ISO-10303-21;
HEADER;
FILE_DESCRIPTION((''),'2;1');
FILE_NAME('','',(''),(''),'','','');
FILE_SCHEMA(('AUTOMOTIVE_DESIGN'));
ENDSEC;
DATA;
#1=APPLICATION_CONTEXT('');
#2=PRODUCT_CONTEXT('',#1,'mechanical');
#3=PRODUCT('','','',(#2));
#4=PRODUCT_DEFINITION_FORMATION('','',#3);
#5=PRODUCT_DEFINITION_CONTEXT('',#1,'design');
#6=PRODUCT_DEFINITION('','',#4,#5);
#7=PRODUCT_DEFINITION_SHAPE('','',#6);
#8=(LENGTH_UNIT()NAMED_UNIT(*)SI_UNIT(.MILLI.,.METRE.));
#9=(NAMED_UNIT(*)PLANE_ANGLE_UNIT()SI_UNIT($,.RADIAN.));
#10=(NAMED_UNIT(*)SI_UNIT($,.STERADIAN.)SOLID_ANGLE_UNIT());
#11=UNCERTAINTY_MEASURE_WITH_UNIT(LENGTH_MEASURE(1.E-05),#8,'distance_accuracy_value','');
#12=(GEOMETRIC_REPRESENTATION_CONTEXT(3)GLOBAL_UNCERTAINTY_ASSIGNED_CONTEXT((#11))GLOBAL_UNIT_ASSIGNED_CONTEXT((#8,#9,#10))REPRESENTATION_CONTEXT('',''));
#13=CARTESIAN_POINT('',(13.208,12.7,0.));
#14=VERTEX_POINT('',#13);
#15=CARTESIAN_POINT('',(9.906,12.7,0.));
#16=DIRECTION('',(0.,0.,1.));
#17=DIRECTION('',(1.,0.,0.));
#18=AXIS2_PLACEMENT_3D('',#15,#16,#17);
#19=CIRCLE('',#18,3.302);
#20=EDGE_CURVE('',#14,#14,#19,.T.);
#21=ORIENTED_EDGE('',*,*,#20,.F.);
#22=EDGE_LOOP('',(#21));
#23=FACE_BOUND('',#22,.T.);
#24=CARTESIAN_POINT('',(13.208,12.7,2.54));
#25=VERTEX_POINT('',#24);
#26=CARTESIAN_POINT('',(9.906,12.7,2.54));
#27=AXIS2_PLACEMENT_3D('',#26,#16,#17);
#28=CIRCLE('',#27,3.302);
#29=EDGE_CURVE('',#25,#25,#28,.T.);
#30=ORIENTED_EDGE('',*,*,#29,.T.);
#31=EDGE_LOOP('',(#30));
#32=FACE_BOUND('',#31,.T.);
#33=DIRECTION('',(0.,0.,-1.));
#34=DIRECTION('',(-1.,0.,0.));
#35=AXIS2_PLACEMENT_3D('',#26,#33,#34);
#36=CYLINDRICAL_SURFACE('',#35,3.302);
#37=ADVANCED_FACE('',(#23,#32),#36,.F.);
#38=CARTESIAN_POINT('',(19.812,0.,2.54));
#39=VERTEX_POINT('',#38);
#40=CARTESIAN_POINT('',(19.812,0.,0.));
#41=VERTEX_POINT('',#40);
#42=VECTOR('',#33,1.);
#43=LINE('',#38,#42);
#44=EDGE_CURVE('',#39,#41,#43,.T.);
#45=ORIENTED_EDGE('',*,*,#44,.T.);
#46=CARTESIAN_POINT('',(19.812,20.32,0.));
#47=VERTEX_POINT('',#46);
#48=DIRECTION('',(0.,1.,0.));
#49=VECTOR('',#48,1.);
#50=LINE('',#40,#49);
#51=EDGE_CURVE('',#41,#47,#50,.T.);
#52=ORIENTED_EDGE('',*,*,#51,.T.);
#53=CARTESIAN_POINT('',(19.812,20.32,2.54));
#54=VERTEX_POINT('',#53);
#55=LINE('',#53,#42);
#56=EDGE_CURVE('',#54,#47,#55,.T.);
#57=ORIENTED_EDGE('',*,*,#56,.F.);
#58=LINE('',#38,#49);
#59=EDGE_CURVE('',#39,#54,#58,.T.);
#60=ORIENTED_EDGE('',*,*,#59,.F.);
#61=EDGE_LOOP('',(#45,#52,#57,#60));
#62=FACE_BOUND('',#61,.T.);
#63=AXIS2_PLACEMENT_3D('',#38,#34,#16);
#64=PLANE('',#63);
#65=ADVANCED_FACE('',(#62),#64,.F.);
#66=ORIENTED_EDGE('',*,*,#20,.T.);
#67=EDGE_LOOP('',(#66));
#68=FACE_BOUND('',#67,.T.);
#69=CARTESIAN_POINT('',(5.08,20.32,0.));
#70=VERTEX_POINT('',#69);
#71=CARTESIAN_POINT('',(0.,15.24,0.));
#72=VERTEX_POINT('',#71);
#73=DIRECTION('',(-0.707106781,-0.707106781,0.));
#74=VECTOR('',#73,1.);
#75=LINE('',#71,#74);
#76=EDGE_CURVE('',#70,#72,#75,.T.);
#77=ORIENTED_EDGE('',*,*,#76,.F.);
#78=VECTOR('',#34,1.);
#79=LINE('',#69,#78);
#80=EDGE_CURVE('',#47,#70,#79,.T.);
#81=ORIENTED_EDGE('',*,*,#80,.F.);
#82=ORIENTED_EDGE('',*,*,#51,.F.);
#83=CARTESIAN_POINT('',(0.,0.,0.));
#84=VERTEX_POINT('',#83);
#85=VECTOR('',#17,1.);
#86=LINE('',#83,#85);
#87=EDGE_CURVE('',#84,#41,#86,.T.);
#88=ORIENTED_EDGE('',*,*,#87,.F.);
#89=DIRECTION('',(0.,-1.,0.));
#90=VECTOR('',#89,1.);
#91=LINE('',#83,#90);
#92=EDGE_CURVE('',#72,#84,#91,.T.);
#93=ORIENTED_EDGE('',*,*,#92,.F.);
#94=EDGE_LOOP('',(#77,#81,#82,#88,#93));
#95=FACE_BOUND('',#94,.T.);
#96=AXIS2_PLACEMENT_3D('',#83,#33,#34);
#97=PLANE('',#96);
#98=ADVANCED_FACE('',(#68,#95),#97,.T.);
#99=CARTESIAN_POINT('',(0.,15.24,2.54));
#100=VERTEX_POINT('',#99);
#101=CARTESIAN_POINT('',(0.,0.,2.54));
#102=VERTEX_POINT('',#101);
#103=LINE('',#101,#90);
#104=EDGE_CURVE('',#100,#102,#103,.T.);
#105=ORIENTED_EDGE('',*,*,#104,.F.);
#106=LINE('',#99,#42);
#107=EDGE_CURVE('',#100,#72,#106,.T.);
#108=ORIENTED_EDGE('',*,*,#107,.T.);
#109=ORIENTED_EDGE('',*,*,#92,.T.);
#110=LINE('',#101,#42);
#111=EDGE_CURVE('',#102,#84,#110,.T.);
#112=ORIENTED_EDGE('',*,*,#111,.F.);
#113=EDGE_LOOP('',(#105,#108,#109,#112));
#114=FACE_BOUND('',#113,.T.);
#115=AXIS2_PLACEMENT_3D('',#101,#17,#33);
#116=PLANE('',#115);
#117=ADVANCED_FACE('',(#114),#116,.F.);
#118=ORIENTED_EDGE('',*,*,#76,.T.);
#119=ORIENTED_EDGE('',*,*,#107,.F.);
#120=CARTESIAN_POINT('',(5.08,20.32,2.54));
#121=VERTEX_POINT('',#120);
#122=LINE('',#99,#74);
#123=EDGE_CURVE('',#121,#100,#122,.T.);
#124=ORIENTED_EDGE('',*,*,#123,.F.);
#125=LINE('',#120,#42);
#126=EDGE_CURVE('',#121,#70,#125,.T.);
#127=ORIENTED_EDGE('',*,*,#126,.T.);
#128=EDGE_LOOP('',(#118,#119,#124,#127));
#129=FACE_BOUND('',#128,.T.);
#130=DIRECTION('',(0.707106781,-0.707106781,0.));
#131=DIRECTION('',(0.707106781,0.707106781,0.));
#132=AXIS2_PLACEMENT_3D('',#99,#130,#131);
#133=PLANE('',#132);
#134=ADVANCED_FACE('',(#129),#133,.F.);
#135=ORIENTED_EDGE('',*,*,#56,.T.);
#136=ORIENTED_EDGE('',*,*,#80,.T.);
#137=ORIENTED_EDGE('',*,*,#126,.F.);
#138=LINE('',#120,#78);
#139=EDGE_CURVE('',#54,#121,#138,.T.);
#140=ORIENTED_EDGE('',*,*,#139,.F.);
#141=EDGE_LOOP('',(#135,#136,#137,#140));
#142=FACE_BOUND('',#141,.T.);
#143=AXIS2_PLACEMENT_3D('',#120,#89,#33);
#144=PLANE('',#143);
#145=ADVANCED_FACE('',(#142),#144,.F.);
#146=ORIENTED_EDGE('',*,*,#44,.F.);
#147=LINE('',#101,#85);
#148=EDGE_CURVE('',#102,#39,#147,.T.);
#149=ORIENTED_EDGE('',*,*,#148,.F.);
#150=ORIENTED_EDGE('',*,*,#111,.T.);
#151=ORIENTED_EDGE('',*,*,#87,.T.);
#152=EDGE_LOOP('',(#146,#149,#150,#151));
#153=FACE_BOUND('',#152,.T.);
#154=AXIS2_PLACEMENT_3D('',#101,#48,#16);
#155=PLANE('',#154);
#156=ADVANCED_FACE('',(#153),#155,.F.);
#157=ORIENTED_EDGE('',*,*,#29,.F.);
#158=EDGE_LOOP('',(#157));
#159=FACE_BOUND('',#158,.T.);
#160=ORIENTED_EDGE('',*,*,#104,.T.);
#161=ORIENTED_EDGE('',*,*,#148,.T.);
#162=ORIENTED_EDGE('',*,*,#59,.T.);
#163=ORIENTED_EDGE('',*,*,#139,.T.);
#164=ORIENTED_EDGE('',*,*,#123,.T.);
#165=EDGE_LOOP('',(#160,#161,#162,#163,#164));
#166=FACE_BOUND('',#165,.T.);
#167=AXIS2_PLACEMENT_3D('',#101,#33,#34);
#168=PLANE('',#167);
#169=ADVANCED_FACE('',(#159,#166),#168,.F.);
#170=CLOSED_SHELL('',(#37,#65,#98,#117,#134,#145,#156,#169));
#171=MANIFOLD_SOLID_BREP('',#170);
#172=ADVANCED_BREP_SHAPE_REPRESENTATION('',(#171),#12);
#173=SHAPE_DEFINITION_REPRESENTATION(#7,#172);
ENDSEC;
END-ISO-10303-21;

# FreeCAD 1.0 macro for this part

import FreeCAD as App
import Part
import Sketcher

V = App.Vector
Q = App.Units.Quantity


def add_polygon(sketch, points):
    """Adds a closed chain of lines whose ends are joined by coincident constraints."""
    first, n = sketch.GeometryCount, len(points)
    for a, b in zip(points, points[1:] + points[:1]):
        sketch.addGeometry(Part.LineSegment(App.Vector(*a, 0), App.Vector(*b, 0)), False)
    for i in range(n):
        sketch.addConstraint(Sketcher.Constraint("Coincident", first + i, 2, first + (i + 1) % n, 1))

doc = App.newDocument("Part")
params = doc.addObject("Spreadsheet::Sheet", "Params")
for row, (alias, value) in enumerate([
    ("sketch1_diameter", "0.26 in"),
    ("sketch1_height", "0.6 in"),
    ("sketch1_height2", "0.8 in"),
    ("sketch1_width", "0.78 in"),
    ("pad1_length", "0.1 in"),
], start=1):
    params.set(f"A{row}", alias)
    params.set(f"B{row}", "=" + value)
    params.setAlias(f"B{row}", alias)

body = doc.addObject("PartDesign::Body", "Body")

# Sketch on XY plane
sketch1 = body.newObject("Sketcher::SketchObject", "Sketch")
sketch1.AttachmentSupport = (doc.getObject("XY_Plane"), [""])
sketch1.MapMode = "FlatFace"
add_polygon(sketch1, [(5.1, 20.3), (0, 15.2), (0, 0), (19.8, 0), (19.8, 20.3)])  # lines 0-4
sketch1.addGeometry(Part.Circle(V(9.9, 12.7, 0), V(0, 0, 1), 3.3), False)  # 5
sketch1.addConstraint([
    Sketcher.Constraint("Vertical", 1),
    Sketcher.Constraint("Horizontal", 2),
    Sketcher.Constraint("Vertical", 3),
    Sketcher.Constraint("Horizontal", 4),
    Sketcher.Constraint("Coincident", 1, 2, -1, 1),
    Sketcher.Constraint("Diameter", 5, Q("0.26 in")),
    Sketcher.Constraint("DistanceY", 1, 2, 1, 1, Q("0.6 in")),
    Sketcher.Constraint("DistanceY", 3, 1, 3, 2, Q("0.8 in")),
    Sketcher.Constraint("Angle", 0, Q("-135 deg")),
    Sketcher.Constraint("DistanceX", 2, 1, 2, 2, Q("0.78 in")),
    Sketcher.Constraint("DistanceY", -1, 1, 5, 3, Q("0.5 in")),
    Sketcher.Constraint("DistanceX", -1, 1, 5, 3, Q("0.39 in")),
])
sketch1.setExpression("Constraints[10]", "Params.sketch1_diameter")
sketch1.setExpression("Constraints[11]", "Params.sketch1_height")
sketch1.setExpression("Constraints[12]", "Params.sketch1_height2")
sketch1.setExpression("Constraints[14]", "Params.sketch1_width")
pad1 = body.newObject("PartDesign::Pad", "Pad")
pad1.Profile = sketch1
pad1.setExpression("Length", "Params.pad1_length")

doc.recompute()
